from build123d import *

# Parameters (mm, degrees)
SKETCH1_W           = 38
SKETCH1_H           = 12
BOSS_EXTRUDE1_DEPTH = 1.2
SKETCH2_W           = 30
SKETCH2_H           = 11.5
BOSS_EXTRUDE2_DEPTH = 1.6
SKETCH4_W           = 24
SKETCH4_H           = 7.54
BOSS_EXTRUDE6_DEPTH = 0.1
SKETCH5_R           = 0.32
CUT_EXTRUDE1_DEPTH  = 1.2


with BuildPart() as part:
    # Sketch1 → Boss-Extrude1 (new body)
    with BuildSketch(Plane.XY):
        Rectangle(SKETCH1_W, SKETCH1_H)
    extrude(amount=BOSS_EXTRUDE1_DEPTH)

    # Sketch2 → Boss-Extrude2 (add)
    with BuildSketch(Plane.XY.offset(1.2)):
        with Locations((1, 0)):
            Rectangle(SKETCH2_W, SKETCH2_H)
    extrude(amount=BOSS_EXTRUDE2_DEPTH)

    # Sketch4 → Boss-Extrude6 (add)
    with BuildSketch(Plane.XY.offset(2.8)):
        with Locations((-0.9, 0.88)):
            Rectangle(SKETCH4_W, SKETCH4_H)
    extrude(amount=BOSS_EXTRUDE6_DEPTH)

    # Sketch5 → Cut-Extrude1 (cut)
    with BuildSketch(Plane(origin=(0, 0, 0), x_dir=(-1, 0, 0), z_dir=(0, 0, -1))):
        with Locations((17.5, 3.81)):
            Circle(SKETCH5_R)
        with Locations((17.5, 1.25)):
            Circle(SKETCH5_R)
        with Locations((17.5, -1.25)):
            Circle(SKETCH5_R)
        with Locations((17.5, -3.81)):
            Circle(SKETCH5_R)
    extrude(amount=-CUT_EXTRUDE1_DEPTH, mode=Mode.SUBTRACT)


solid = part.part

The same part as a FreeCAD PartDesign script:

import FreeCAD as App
import Part
import Sketcher

V = App.Vector
Q = App.Units.Quantity


def add_polygon(sketch, points):
    """Adds a closed chain of lines whose ends are joined by coincident constraints."""
    first, n = sketch.GeometryCount, len(points)
    for a, b in zip(points, points[1:] + points[:1]):
        sketch.addGeometry(Part.LineSegment(App.Vector(*a, 0), App.Vector(*b, 0)), False)
    for i in range(n):
        sketch.addConstraint(Sketcher.Constraint("Coincident", first + i, 2, first + (i + 1) % n, 1))

doc = App.newDocument("Part")
body = doc.addObject("PartDesign::Body", "Body")

# Sketch on XY plane
sketch1 = body.newObject("Sketcher::SketchObject", "Sketch")
sketch1.AttachmentSupport = (doc.getObject("XY_Plane"), [""])
sketch1.MapMode = "FlatFace"
add_polygon(sketch1, [(-19, 6), (-19, -6), (19, -6), (19, 6)])  # lines 0-3
sketch1.addConstraint(Sketcher.Constraint("Vertical", 0))
sketch1.addConstraint(Sketcher.Constraint("Horizontal", 1))
sketch1.addConstraint(Sketcher.Constraint("Vertical", 2))
sketch1.addConstraint(Sketcher.Constraint("Horizontal", 3))
sketch1.addConstraint(Sketcher.Constraint("Symmetric", 0, 2, 2, 2, -1, 1))
sketch1.addConstraint(Sketcher.Constraint("DistanceX", 1, 1, 1, 2, Q("38 mm")))
sketch1.addConstraint(Sketcher.Constraint("DistanceY", 0, 2, 0, 1, Q("12 mm")))
pad1 = body.newObject("PartDesign::Pad", "Pad")
pad1.Profile = sketch1
pad1.Length = 1.2

# Sketch on XY plane
sketch2 = body.newObject("Sketcher::SketchObject", "Sketch001")
sketch2.AttachmentSupport = (doc.getObject("XY_Plane"), [""])
sketch2.MapMode = "FlatFace"
sketch2.AttachmentOffset = App.Placement(V(0, 0, 1.2), App.Rotation())
add_polygon(sketch2, [(-14, 5.75), (-14, -5.75), (16, -5.75), (16, 5.75)])  # lines 0-3
sketch2.addConstraint(Sketcher.Constraint("Vertical", 0))
sketch2.addConstraint(Sketcher.Constraint("Horizontal", 1))
sketch2.addConstraint(Sketcher.Constraint("Vertical", 2))
sketch2.addConstraint(Sketcher.Constraint("Horizontal", 3))
sketch2.addConstraint(Sketcher.Constraint("DistanceX", 1, 1, 1, 2, Q("30 mm")))
sketch2.addConstraint(Sketcher.Constraint("DistanceY", 0, 2, 0, 1, Q("11.5 mm")))
sketch2.addConstraint(Sketcher.Constraint("DistanceX", 0, 2, -1, 1, Q("14 mm")))
sketch2.addConstraint(Sketcher.Constraint("DistanceY", 0, 2, -1, 1, Q("5.75 mm")))
pad2 = body.newObject("PartDesign::Pad", "Pad001")
pad2.Profile = sketch2
pad2.Length = 1.6

# Sketch on XY plane
sketch3 = body.newObject("Sketcher::SketchObject", "Sketch002")
sketch3.AttachmentSupport = (doc.getObject("XY_Plane"), [""])
sketch3.MapMode = "FlatFace"
sketch3.AttachmentOffset = App.Placement(V(0, 0, 2.8), App.Rotation())
add_polygon(sketch3, [(-12.9, 4.65), (-12.9, -2.89), (11.1, -2.89), (11.1, 4.65)])  # lines 0-3
sketch3.addConstraint(Sketcher.Constraint("Vertical", 0))
sketch3.addConstraint(Sketcher.Constraint("Horizontal", 1))
sketch3.addConstraint(Sketcher.Constraint("Vertical", 2))
sketch3.addConstraint(Sketcher.Constraint("Horizontal", 3))
sketch3.addConstraint(Sketcher.Constraint("DistanceX", 1, 1, 1, 2, Q("24 mm")))
sketch3.addConstraint(Sketcher.Constraint("DistanceY", 0, 2, 0, 1, Q("7.54 mm")))
sketch3.addConstraint(Sketcher.Constraint("DistanceX", 0, 2, -1, 1, Q("12.9 mm")))
sketch3.addConstraint(Sketcher.Constraint("DistanceY", 0, 2, -1, 1, Q("2.89 mm")))
pad3 = body.newObject("PartDesign::Pad", "Pad002")
pad3.Profile = sketch3
pad3.Length = 0.1

# Sketch on XY plane
sketch4 = body.newObject("Sketcher::SketchObject", "Sketch003")
sketch4.AttachmentSupport = (doc.getObject("XY_Plane"), [""])
sketch4.MapMode = "FlatFace"
sketch4.addGeometry(Part.Circle(V(-17.5, 3.81, 0), V(0, 0, 1), 0.32), False)
sketch4.addGeometry(Part.Circle(V(-17.5, 1.25, 0), V(0, 0, 1), 0.32), False)
sketch4.addGeometry(Part.Circle(V(-17.5, -1.25, 0), V(0, 0, 1), 0.32), False)
sketch4.addGeometry(Part.Circle(V(-17.5, -3.81, 0), V(0, 0, 1), 0.32), False)
sketch4.addConstraint(Sketcher.Constraint("Equal", 0, 1))
sketch4.addConstraint(Sketcher.Constraint("Equal", 1, 2))
sketch4.addConstraint(Sketcher.Constraint("Equal", 2, 3))
sketch4.addConstraint(Sketcher.Constraint("Symmetric", 1, 3, 2, 3, -1))
sketch4.addConstraint(Sketcher.Constraint("Symmetric", 0, 3, 3, 3, -1))
sketch4.addConstraint(Sketcher.Constraint("Vertical", 0, 3, 1, 3))
sketch4.addConstraint(Sketcher.Constraint("Diameter", 0, Q("0.64 mm")))
sketch4.addConstraint(Sketcher.Constraint("DistanceX", 0, 3, -1, 1, Q("17.5 mm")))
sketch4.addConstraint(Sketcher.Constraint("DistanceY", 2, 3, 1, 3, Q("2.5 mm")))
sketch4.addConstraint(Sketcher.Constraint("DistanceY", -1, 1, 0, 3, Q("3.81 mm")))
pocket1 = body.newObject("PartDesign::Pocket", "Pocket")
pocket1.Profile = sketch4
pocket1.Length = 1.2
pocket1.Reversed = True

doc.recompute()
